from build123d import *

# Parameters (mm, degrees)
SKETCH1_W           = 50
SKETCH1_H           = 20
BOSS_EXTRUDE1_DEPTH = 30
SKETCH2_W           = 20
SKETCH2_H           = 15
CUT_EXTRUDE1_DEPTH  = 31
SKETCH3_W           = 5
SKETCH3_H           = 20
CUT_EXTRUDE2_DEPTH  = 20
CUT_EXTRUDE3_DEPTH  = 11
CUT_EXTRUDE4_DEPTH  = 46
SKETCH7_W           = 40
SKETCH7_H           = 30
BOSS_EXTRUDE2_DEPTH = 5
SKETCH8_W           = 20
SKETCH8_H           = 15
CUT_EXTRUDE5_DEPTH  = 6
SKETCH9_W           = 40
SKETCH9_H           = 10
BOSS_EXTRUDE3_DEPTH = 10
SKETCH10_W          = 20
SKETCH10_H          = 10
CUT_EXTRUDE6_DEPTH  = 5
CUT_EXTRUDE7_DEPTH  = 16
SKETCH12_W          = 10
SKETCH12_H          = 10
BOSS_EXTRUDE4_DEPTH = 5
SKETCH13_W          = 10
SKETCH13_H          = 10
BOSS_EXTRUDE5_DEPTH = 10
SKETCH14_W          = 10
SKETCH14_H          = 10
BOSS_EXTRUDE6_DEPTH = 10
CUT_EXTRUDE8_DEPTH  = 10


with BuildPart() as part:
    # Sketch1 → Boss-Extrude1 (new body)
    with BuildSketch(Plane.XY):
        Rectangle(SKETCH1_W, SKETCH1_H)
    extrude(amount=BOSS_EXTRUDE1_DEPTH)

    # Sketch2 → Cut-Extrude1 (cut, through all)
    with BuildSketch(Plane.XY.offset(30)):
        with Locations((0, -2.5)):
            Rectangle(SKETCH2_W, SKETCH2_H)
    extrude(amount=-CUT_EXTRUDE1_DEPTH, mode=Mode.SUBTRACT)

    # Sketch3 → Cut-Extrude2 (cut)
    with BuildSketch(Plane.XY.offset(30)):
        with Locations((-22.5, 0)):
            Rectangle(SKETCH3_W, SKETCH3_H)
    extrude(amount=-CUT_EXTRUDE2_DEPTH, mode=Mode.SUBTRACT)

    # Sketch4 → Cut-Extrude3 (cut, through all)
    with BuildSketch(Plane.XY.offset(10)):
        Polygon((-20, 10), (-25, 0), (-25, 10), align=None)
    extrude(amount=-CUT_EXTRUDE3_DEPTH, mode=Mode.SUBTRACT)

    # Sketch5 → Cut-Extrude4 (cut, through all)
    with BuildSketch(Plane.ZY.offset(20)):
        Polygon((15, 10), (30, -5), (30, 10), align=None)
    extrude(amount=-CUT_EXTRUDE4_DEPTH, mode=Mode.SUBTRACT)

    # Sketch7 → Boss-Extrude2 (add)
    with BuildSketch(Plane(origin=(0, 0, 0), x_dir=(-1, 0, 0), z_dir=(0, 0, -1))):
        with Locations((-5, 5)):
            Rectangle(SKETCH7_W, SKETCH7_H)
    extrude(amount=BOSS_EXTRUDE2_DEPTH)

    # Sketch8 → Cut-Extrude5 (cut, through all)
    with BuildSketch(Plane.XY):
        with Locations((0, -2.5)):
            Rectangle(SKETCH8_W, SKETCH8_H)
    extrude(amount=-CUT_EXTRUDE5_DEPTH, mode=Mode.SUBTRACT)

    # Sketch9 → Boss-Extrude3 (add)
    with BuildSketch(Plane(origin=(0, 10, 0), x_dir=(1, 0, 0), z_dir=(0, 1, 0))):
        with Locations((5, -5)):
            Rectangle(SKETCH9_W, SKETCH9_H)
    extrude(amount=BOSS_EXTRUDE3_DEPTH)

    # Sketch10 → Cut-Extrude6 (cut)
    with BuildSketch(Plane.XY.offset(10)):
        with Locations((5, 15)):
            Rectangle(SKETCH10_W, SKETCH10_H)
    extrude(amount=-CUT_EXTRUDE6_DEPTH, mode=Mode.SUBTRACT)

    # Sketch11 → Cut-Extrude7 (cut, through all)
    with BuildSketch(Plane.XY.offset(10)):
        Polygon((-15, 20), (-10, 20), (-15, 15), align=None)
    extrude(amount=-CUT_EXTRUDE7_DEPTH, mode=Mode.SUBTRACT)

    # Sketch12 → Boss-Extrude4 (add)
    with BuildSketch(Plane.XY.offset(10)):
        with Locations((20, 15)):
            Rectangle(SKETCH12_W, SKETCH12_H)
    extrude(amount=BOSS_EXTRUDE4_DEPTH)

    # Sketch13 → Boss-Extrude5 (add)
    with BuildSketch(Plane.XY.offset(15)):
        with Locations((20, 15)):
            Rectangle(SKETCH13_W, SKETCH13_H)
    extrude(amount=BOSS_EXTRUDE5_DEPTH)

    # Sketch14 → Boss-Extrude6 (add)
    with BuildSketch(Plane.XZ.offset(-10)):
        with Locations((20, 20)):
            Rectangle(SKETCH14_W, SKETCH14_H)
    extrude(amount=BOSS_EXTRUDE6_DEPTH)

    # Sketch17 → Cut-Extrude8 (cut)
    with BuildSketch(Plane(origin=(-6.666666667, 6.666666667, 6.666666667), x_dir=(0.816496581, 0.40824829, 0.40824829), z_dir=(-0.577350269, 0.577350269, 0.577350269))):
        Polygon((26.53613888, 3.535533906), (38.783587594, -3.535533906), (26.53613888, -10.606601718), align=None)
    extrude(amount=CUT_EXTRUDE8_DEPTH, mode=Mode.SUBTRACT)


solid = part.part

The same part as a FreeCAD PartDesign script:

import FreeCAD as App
import Part
import Sketcher
from FreeCAD import Vector
Q = App.Units.Quantity

doc = App.newDocument("Part")
body = doc.addObject("PartDesign::Body", "Body")

sketch1 = body.newObject("Sketcher::SketchObject", "Sketch")
sketch1.AttachmentSupport = (doc.getObject("XY_Plane"), [""])
sketch1.MapMode = "FlatFace"
sketch1.addGeometry([
    Part.LineSegment(Vector(-25, 10, 0), Vector(-25, -10, 0)),
    Part.LineSegment(Vector(-25, -10, 0), Vector(25, -10, 0)),
    Part.LineSegment(Vector(25, -10, 0), Vector(25, 10, 0)),
    Part.LineSegment(Vector(25, 10, 0), Vector(-25, 10, 0)),
], False)
sketch1.addConstraint([
    Sketcher.Constraint("Coincident", 0, 2, 1, 1),
    Sketcher.Constraint("Coincident", 1, 2, 2, 1),
    Sketcher.Constraint("Coincident", 2, 2, 3, 1),
    Sketcher.Constraint("Coincident", 3, 2, 0, 1),
    Sketcher.Constraint("Vertical", 0),
    Sketcher.Constraint("Horizontal", 1),
    Sketcher.Constraint("Vertical", 2),
    Sketcher.Constraint("Horizontal", 3),
    Sketcher.Constraint("Symmetric", 0, 2, 2, 2, -1, 1),
    Sketcher.Constraint("DistanceX", 1, 1, 1, 2, 50.0),
    Sketcher.Constraint("DistanceY", 0, 2, 0, 1, 20.0),
])
pad1 = body.newObject("PartDesign::Pad", "Pad")
pad1.Profile = sketch1
pad1.Length = 30

sketch2 = body.newObject("Sketcher::SketchObject", "Sketch001")
sketch2.AttachmentSupport = (doc.getObject("XY_Plane"), [""])
sketch2.MapMode = "FlatFace"
sketch2.AttachmentOffset = App.Placement(Vector(0, 0, 30), App.Rotation())
sketch2.addGeometry([
    Part.LineSegment(Vector(-10, 5, 0), Vector(-10, -10, 0)),
    Part.LineSegment(Vector(-10, -10, 0), Vector(10, -10, 0)),
    Part.LineSegment(Vector(10, -10, 0), Vector(10, 5, 0)),
    Part.LineSegment(Vector(10, 5, 0), Vector(-10, 5, 0)),
], False)
sketch2.addConstraint([
    Sketcher.Constraint("Coincident", 0, 2, 1, 1),
    Sketcher.Constraint("Coincident", 1, 2, 2, 1),
    Sketcher.Constraint("Coincident", 2, 2, 3, 1),
    Sketcher.Constraint("Coincident", 3, 2, 0, 1),
    Sketcher.Constraint("Vertical", 0),
    Sketcher.Constraint("Horizontal", 1),
    Sketcher.Constraint("Vertical", 2),
    Sketcher.Constraint("Horizontal", 3),
    Sketcher.Constraint("DistanceX", 1, 1, 1, 2, 20.0),
    Sketcher.Constraint("DistanceY", 0, 2, 0, 1, 15.0),
    Sketcher.Constraint("DistanceX", 0, 2, -1, 1, 10.0),
    Sketcher.Constraint("DistanceY", 0, 2, -1, 1, 10.0),
])
pocket1 = body.newObject("PartDesign::Pocket", "Pocket")
pocket1.Profile = sketch2
pocket1.Type = "ThroughAll"

sketch3 = body.newObject("Sketcher::SketchObject", "Sketch002")
sketch3.AttachmentSupport = (doc.getObject("XY_Plane"), [""])
sketch3.MapMode = "FlatFace"
sketch3.AttachmentOffset = App.Placement(Vector(0, 0, 30), App.Rotation())
sketch3.addGeometry([
    Part.LineSegment(Vector(-25, 10, 0), Vector(-25, -10, 0)),
    Part.LineSegment(Vector(-25, -10, 0), Vector(-20, -10, 0)),
    Part.LineSegment(Vector(-20, -10, 0), Vector(-20, 10, 0)),
    Part.LineSegment(Vector(-20, 10, 0), Vector(-25, 10, 0)),
], False)
sketch3.addConstraint([
    Sketcher.Constraint("Coincident", 0, 2, 1, 1),
    Sketcher.Constraint("Coincident", 1, 2, 2, 1),
    Sketcher.Constraint("Coincident", 2, 2, 3, 1),
    Sketcher.Constraint("Coincident", 3, 2, 0, 1),
    Sketcher.Constraint("Vertical", 0),
    Sketcher.Constraint("Horizontal", 1),
    Sketcher.Constraint("Vertical", 2),
    Sketcher.Constraint("Horizontal", 3),
    Sketcher.Constraint("DistanceX", 1, 1, 1, 2, 5.0),
    Sketcher.Constraint("DistanceY", 0, 2, 0, 1, 20.0),
    Sketcher.Constraint("DistanceX", 0, 2, -1, 1, 25.0),
    Sketcher.Constraint("DistanceY", 0, 2, -1, 1, 10.0),
])
pocket2 = body.newObject("PartDesign::Pocket", "Pocket001")
pocket2.Profile = sketch3
pocket2.Length = 20

sketch4 = body.newObject("Sketcher::SketchObject", "Sketch003")
sketch4.AttachmentSupport = (doc.getObject("XY_Plane"), [""])
sketch4.MapMode = "FlatFace"
sketch4.AttachmentOffset = App.Placement(Vector(0, 0, 10), App.Rotation())
sketch4.addGeometry([
    Part.LineSegment(Vector(-25, 0, 0), Vector(-20, 10, 0)),
    Part.LineSegment(Vector(-20, 10, 0), Vector(-25, 10, 0)),
    Part.LineSegment(Vector(-25, 10, 0), Vector(-25, 0, 0)),
], False)
sketch4.addConstraint([
    Sketcher.Constraint("Coincident", 0, 2, 1, 1),
    Sketcher.Constraint("Coincident", 1, 2, 2, 1),
    Sketcher.Constraint("Coincident", 2, 2, 0, 1),
    Sketcher.Constraint("Horizontal", 1),
    Sketcher.Constraint("Vertical", 2),
    Sketcher.Constraint("PointOnObject", 2, 2, -1),
    Sketcher.Constraint("DistanceX", 1, 2, 1, 1, 5.0),
    Sketcher.Constraint("DistanceY", 2, 2, 2, 1, 10.0),
    Sketcher.Constraint("DistanceX", 0, 2, -1, 1, 20.0),
])
pocket3 = body.newObject("PartDesign::Pocket", "Pocket002")
pocket3.Profile = sketch4
pocket3.Type = "ThroughAll"

sketch5 = body.newObject("Sketcher::SketchObject", "Sketch004")
sketch5.AttachmentSupport = (doc.getObject("YZ_Plane"), [""])
sketch5.MapMode = "FlatFace"
sketch5.AttachmentOffset = App.Placement(Vector(0, 0, -20), App.Rotation())
sketch5.addGeometry([
    Part.LineSegment(Vector(10, 15, 0), Vector(-5, 30, 0)),
    Part.LineSegment(Vector(-5, 30, 0), Vector(10, 30, 0)),
    Part.LineSegment(Vector(10, 30, 0), Vector(10, 15, 0)),
], False)
sketch5.addConstraint([
    Sketcher.Constraint("Coincident", 0, 2, 1, 1),
    Sketcher.Constraint("Coincident", 1, 2, 2, 1),
    Sketcher.Constraint("Coincident", 2, 2, 0, 1),
    Sketcher.Constraint("Horizontal", 1),
    Sketcher.Constraint("Vertical", 2),
    Sketcher.Constraint("Equal", 1, 2),
    Sketcher.Constraint("DistanceX", 1, 1, 1, 2, 15.0),
    Sketcher.Constraint("DistanceX", 0, 2, -1, 1, 5.0),
    Sketcher.Constraint("DistanceY", -1, 1, 0, 2, 30.0),
])
pocket4 = body.newObject("PartDesign::Pocket", "Pocket003")
pocket4.Profile = sketch5
pocket4.Type = "ThroughAll"
pocket4.Reversed = True

sketch6 = body.newObject("Sketcher::SketchObject", "Sketch005")
sketch6.AttachmentSupport = (doc.getObject("XY_Plane"), [""])
sketch6.MapMode = "FlatFace"
sketch6.addGeometry([
    Part.LineSegment(Vector(25, 20, 0), Vector(25, -10, 0)),
    Part.LineSegment(Vector(25, -10, 0), Vector(-15, -10, 0)),
    Part.LineSegment(Vector(-15, -10, 0), Vector(-15, 20, 0)),
    Part.LineSegment(Vector(-15, 20, 0), Vector(25, 20, 0)),
], False)
sketch6.addConstraint([
    Sketcher.Constraint("Coincident", 0, 2, 1, 1),
    Sketcher.Constraint("Coincident", 1, 2, 2, 1),
    Sketcher.Constraint("Coincident", 2, 2, 3, 1),
    Sketcher.Constraint("Coincident", 3, 2, 0, 1),
    Sketcher.Constraint("Vertical", 0),
    Sketcher.Constraint("Horizontal", 1),
    Sketcher.Constraint("Vertical", 2),
    Sketcher.Constraint("Horizontal", 3),
    Sketcher.Constraint("DistanceX", 1, 2, 1, 1, 40.0),
    Sketcher.Constraint("DistanceY", 0, 2, 0, 1, 30.0),
    Sketcher.Constraint("DistanceX", -1, 1, 0, 2, 25.0),
    Sketcher.Constraint("DistanceY", 0, 2, -1, 1, 10.0),
])
pad2 = body.newObject("PartDesign::Pad", "Pad001")
pad2.Profile = sketch6
pad2.Length = 5
pad2.Reversed = True

sketch7 = body.newObject("Sketcher::SketchObject", "Sketch006")
sketch7.AttachmentSupport = (doc.getObject("XY_Plane"), [""])
sketch7.MapMode = "FlatFace"
sketch7.addGeometry([
    Part.LineSegment(Vector(-10, 5, 0), Vector(-10, -10, 0)),
    Part.LineSegment(Vector(-10, -10, 0), Vector(10, -10, 0)),
    Part.LineSegment(Vector(10, -10, 0), Vector(10, 5, 0)),
    Part.LineSegment(Vector(10, 5, 0), Vector(-10, 5, 0)),
], False)
sketch7.addConstraint([
    Sketcher.Constraint("Coincident", 0, 2, 1, 1),
    Sketcher.Constraint("Coincident", 1, 2, 2, 1),
    Sketcher.Constraint("Coincident", 2, 2, 3, 1),
    Sketcher.Constraint("Coincident", 3, 2, 0, 1),
    Sketcher.Constraint("Vertical", 0),
    Sketcher.Constraint("Horizontal", 1),
    Sketcher.Constraint("Vertical", 2),
    Sketcher.Constraint("Horizontal", 3),
    Sketcher.Constraint("DistanceX", 1, 1, 1, 2, 20.0),
    Sketcher.Constraint("DistanceY", 0, 2, 0, 1, 15.0),
    Sketcher.Constraint("DistanceX", 0, 2, -1, 1, 10.0),
    Sketcher.Constraint("DistanceY", 0, 2, -1, 1, 10.0),
])
pocket5 = body.newObject("PartDesign::Pocket", "Pocket004")
pocket5.Profile = sketch7
pocket5.Type = "ThroughAll"

sketch8 = body.newObject("Sketcher::SketchObject", "Sketch007")
sketch8.AttachmentSupport = (doc.getObject("XZ_Plane"), [""])
sketch8.MapMode = "FlatFace"
sketch8.AttachmentOffset = App.Placement(Vector(0, 0, -10), App.Rotation())
sketch8.addGeometry([
    Part.LineSegment(Vector(-15, 0, 0), Vector(-15, 10, 0)),
    Part.LineSegment(Vector(-15, 10, 0), Vector(25, 10, 0)),
    Part.LineSegment(Vector(25, 10, 0), Vector(25, 0, 0)),
    Part.LineSegment(Vector(25, 0, 0), Vector(-15, 0, 0)),
], False)
sketch8.addConstraint([
    Sketcher.Constraint("Coincident", 0, 2, 1, 1),
    Sketcher.Constraint("Coincident", 1, 2, 2, 1),
    Sketcher.Constraint("Coincident", 2, 2, 3, 1),
    Sketcher.Constraint("Coincident", 3, 2, 0, 1),
    Sketcher.Constraint("Vertical", 0),
    Sketcher.Constraint("Horizontal", 1),
    Sketcher.Constraint("Vertical", 2),
    Sketcher.Constraint("Horizontal", 3),
    Sketcher.Constraint("PointOnObject", 2, 2, -1),
    Sketcher.Constraint("DistanceX", 1, 1, 1, 2, 40.0),
    Sketcher.Constraint("DistanceY", 0, 1, 0, 2, 10.0),
    Sketcher.Constraint("DistanceX", 0, 2, -1, 1, 15.0),
])
pad3 = body.newObject("PartDesign::Pad", "Pad002")
pad3.Profile = sketch8
pad3.Length = 10
pad3.Reversed = True

sketch9 = body.newObject("Sketcher::SketchObject", "Sketch008")
sketch9.AttachmentSupport = (doc.getObject("XY_Plane"), [""])
sketch9.MapMode = "FlatFace"
sketch9.AttachmentOffset = App.Placement(Vector(0, 0, 10), App.Rotation())
sketch9.addGeometry([
    Part.LineSegment(Vector(-5, 20, 0), Vector(-5, 10, 0)),
    Part.LineSegment(Vector(-5, 10, 0), Vector(15, 10, 0)),
    Part.LineSegment(Vector(15, 10, 0), Vector(15, 20, 0)),
    Part.LineSegment(Vector(15, 20, 0), Vector(-5, 20, 0)),
], False)
sketch9.addConstraint([
    Sketcher.Constraint("Coincident", 0, 2, 1, 1),
    Sketcher.Constraint("Coincident", 1, 2, 2, 1),
    Sketcher.Constraint("Coincident", 2, 2, 3, 1),
    Sketcher.Constraint("Coincident", 3, 2, 0, 1),
    Sketcher.Constraint("Vertical", 0),
    Sketcher.Constraint("Horizontal", 1),
    Sketcher.Constraint("Vertical", 2),
    Sketcher.Constraint("Horizontal", 3),
    Sketcher.Constraint("DistanceX", 1, 1, 1, 2, 20.0),
    Sketcher.Constraint("DistanceY", 0, 2, 0, 1, 10.0),
    Sketcher.Constraint("DistanceX", 0, 2, -1, 1, 5.0),
    Sketcher.Constraint("DistanceY", -1, 1, 0, 2, 10.0),
])
pocket6 = body.newObject("PartDesign::Pocket", "Pocket005")
pocket6.Profile = sketch9
pocket6.Length = 5

sketch10 = body.newObject("Sketcher::SketchObject", "Sketch009")
sketch10.AttachmentSupport = (doc.getObject("XY_Plane"), [""])
sketch10.MapMode = "FlatFace"
sketch10.AttachmentOffset = App.Placement(Vector(0, 0, 10), App.Rotation())
sketch10.addGeometry([
    Part.LineSegment(Vector(-10, 20, 0), Vector(-15, 20, 0)),
    Part.LineSegment(Vector(-15, 20, 0), Vector(-15, 15, 0)),
    Part.LineSegment(Vector(-15, 15, 0), Vector(-10, 20, 0)),
], False)
sketch10.addConstraint([
    Sketcher.Constraint("Coincident", 0, 2, 1, 1),
    Sketcher.Constraint("Coincident", 1, 2, 2, 1),
    Sketcher.Constraint("Coincident", 2, 2, 0, 1),
    Sketcher.Constraint("Horizontal", 0),
    Sketcher.Constraint("Vertical", 1),
    Sketcher.Constraint("Equal", 0, 1),
    Sketcher.Constraint("DistanceX", 0, 2, 0, 1, 5.0),
    Sketcher.Constraint("DistanceX", 0, 2, -1, 1, 15.0),
    Sketcher.Constraint("DistanceY", -1, 1, 0, 2, 20.0),
])
pocket7 = body.newObject("PartDesign::Pocket", "Pocket006")
pocket7.Profile = sketch10
pocket7.Type = "ThroughAll"

sketch11 = body.newObject("Sketcher::SketchObject", "Sketch010")
sketch11.AttachmentSupport = (doc.getObject("XY_Plane"), [""])
sketch11.MapMode = "FlatFace"
sketch11.AttachmentOffset = App.Placement(Vector(0, 0, 10), App.Rotation())
sketch11.addGeometry([
    Part.LineSegment(Vector(15, 20, 0), Vector(15, 10, 0)),
    Part.LineSegment(Vector(15, 10, 0), Vector(25, 10, 0)),
    Part.LineSegment(Vector(25, 10, 0), Vector(25, 20, 0)),
    Part.LineSegment(Vector(25, 20, 0), Vector(15, 20, 0)),
], False)
sketch11.addConstraint([
    Sketcher.Constraint("Coincident", 0, 2, 1, 1),
    Sketcher.Constraint("Coincident", 1, 2, 2, 1),
    Sketcher.Constraint("Coincident", 2, 2, 3, 1),
    Sketcher.Constraint("Coincident", 3, 2, 0, 1),
    Sketcher.Constraint("Vertical", 0),
    Sketcher.Constraint("Horizontal", 1),
    Sketcher.Constraint("Vertical", 2),
    Sketcher.Constraint("Horizontal", 3),
    Sketcher.Constraint("Equal", 3, 0),
    Sketcher.Constraint("DistanceX", 1, 1, 1, 2, 10.0),
    Sketcher.Constraint("DistanceX", -1, 1, 0, 2, 15.0),
    Sketcher.Constraint("DistanceY", -1, 1, 0, 2, 10.0),
])
pad4 = body.newObject("PartDesign::Pad", "Pad003")
pad4.Profile = sketch11
pad4.Length = 5

sketch12 = body.newObject("Sketcher::SketchObject", "Sketch011")
sketch12.AttachmentSupport = (doc.getObject("XY_Plane"), [""])
sketch12.MapMode = "FlatFace"
sketch12.AttachmentOffset = App.Placement(Vector(0, 0, 15), App.Rotation())
sketch12.addGeometry([
    Part.LineSegment(Vector(15, 20, 0), Vector(15, 10, 0)),
    Part.LineSegment(Vector(15, 10, 0), Vector(25, 10, 0)),
    Part.LineSegment(Vector(25, 10, 0), Vector(25, 20, 0)),
    Part.LineSegment(Vector(25, 20, 0), Vector(15, 20, 0)),
], False)
sketch12.addConstraint([
    Sketcher.Constraint("Coincident", 0, 2, 1, 1),
    Sketcher.Constraint("Coincident", 1, 2, 2, 1),
    Sketcher.Constraint("Coincident", 2, 2, 3, 1),
    Sketcher.Constraint("Coincident", 3, 2, 0, 1),
    Sketcher.Constraint("Vertical", 0),
    Sketcher.Constraint("Horizontal", 1),
    Sketcher.Constraint("Vertical", 2),
    Sketcher.Constraint("Horizontal", 3),
    Sketcher.Constraint("Equal", 3, 0),
    Sketcher.Constraint("DistanceX", 1, 1, 1, 2, 10.0),
    Sketcher.Constraint("DistanceX", -1, 1, 0, 2, 15.0),
    Sketcher.Constraint("DistanceY", -1, 1, 0, 2, 10.0),
])
pad5 = body.newObject("PartDesign::Pad", "Pad004")
pad5.Profile = sketch12
pad5.Length = 10

sketch13 = body.newObject("Sketcher::SketchObject", "Sketch012")
sketch13.AttachmentSupport = (doc.getObject("XZ_Plane"), [""])
sketch13.MapMode = "FlatFace"
sketch13.AttachmentOffset = App.Placement(Vector(0, 0, -10), App.Rotation())
sketch13.addGeometry([
    Part.LineSegment(Vector(15, 25, 0), Vector(15, 15, 0)),
    Part.LineSegment(Vector(15, 15, 0), Vector(25, 15, 0)),
    Part.LineSegment(Vector(25, 15, 0), Vector(25, 25, 0)),
    Part.LineSegment(Vector(25, 25, 0), Vector(15, 25, 0)),
], False)
sketch13.addConstraint([
    Sketcher.Constraint("Coincident", 0, 2, 1, 1),
    Sketcher.Constraint("Coincident", 1, 2, 2, 1),
    Sketcher.Constraint("Coincident", 2, 2, 3, 1),
    Sketcher.Constraint("Coincident", 3, 2, 0, 1),
    Sketcher.Constraint("Vertical", 0),
    Sketcher.Constraint("Horizontal", 1),
    Sketcher.Constraint("Vertical", 2),
    Sketcher.Constraint("Horizontal", 3),
    Sketcher.Constraint("Equal", 3, 0),
    Sketcher.Constraint("DistanceX", 1, 1, 1, 2, 10.0),
    Sketcher.Constraint("DistanceX", -1, 1, 0, 2, 15.0),
    Sketcher.Constraint("DistanceY", -1, 1, 0, 2, 15.0),
])
pad6 = body.newObject("PartDesign::Pad", "Pad005")
pad6.Profile = sketch13
pad6.Length = 10

sketch14 = body.newObject("Sketcher::SketchObject", "Sketch013")
sketch14.Placement = App.Placement(Vector(-6.666667, 6.666667, 6.666667), App.Rotation(Vector(0.816496581, 0.40824829, 0.40824829), Vector(0, 0.707106781, -0.707106781), Vector(-0.577350269, 0.577350269, 0.577350269), "ZXY"))
sketch14.addGeometry([
    Part.LineSegment(Vector(39, -4, 0), Vector(27, 4, 0)),
    Part.LineSegment(Vector(27, 4, 0), Vector(27, -11, 0)),
    Part.LineSegment(Vector(27, -11, 0), Vector(39, -4, 0)),
], False)
sketch14.addConstraint([
    Sketcher.Constraint("Coincident", 0, 2, 1, 1),
    Sketcher.Constraint("Coincident", 1, 2, 2, 1),
    Sketcher.Constraint("Coincident", 2, 2, 0, 1),
    Sketcher.Constraint("Vertical", 1),
    Sketcher.Constraint("Equal", 0, 2),
    Sketcher.Constraint("Angle", 0, Q("150 deg")),
    Sketcher.Constraint("DistanceY", 1, 2, -1, 1, 10.606602),
    Sketcher.Constraint("DistanceY", 1, 2, 1, 1, 14.142136),
    Sketcher.Constraint("DistanceX", -1, 1, 0, 2, 26.536139),
])
pocket8 = body.newObject("PartDesign::Pocket", "Pocket007")
pocket8.Profile = sketch14
pocket8.Length = 10
pocket8.Reversed = True

doc.recompute()
